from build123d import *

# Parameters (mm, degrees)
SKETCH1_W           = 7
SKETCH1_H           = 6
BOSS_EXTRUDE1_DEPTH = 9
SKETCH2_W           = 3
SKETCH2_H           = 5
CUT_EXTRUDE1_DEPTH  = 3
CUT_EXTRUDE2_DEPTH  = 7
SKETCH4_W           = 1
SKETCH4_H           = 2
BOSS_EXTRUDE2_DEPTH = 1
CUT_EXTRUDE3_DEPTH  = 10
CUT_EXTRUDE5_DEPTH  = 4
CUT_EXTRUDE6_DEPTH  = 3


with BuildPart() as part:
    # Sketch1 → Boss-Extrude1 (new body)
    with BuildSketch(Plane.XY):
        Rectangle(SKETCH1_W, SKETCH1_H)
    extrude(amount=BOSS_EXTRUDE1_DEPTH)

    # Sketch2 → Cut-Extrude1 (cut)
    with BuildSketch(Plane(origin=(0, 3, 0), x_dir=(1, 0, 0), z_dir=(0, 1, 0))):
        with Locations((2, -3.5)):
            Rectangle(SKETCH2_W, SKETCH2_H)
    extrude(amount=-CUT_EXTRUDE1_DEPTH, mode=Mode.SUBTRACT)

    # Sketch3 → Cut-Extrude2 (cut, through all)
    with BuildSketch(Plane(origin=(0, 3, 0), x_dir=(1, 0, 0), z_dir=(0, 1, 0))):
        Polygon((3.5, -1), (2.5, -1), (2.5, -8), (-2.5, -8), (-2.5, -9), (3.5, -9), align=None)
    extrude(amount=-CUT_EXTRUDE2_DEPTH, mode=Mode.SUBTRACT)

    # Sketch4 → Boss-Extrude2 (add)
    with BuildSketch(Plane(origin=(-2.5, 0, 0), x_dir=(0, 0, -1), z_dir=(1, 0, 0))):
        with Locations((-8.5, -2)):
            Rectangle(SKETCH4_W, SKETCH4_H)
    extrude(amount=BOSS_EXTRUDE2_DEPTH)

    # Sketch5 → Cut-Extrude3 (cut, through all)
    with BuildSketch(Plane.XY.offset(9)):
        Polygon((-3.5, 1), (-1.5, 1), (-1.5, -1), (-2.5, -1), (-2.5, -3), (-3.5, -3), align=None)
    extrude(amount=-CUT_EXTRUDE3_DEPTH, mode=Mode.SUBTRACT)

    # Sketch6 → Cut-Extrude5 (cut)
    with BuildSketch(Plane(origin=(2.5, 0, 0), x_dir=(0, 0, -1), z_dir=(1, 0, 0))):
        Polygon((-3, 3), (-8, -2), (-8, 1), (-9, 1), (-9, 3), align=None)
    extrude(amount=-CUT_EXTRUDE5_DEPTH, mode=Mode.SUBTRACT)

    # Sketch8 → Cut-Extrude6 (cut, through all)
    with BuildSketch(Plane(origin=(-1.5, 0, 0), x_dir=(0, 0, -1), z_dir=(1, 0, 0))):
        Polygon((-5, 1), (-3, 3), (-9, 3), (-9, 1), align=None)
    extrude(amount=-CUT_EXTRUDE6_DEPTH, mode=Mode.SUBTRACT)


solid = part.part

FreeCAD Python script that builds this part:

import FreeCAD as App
import Part
import Sketcher


def add_polygon(sketch, points):
    """Adds a closed chain of lines whose ends are joined by coincident constraints."""
    first, n = sketch.GeometryCount, len(points)
    for a, b in zip(points, points[1:] + points[:1]):
        sketch.addGeometry(Part.LineSegment(App.Vector(*a, 0), App.Vector(*b, 0)), False)
    for i in range(n):
        sketch.addConstraint(Sketcher.Constraint("Coincident", first + i, 2, first + (i + 1) % n, 1))

doc = App.newDocument("Part")
body = doc.addObject("PartDesign::Body", "Body")

sketch1 = doc.addObject("Sketcher::SketchObject", "Sketch")
body.addObject(sketch1)
sketch1.AttachmentSupport = (doc.XY_Plane, [""])
sketch1.MapMode = "FlatFace"
add_polygon(sketch1, [(-3.5, 3), (-3.5, -3), (3.5, -3), (3.5, 3)])
sketch1.addConstraint(Sketcher.Constraint("Vertical", 0))
sketch1.addConstraint(Sketcher.Constraint("Horizontal", 1))
sketch1.addConstraint(Sketcher.Constraint("Vertical", 2))
sketch1.addConstraint(Sketcher.Constraint("Horizontal", 3))
sketch1.addConstraint(Sketcher.Constraint("Symmetric", 0, 2, 2, 2, -1, 1))
sketch1.addConstraint(Sketcher.Constraint("DistanceX", 1, 1, 1, 2, 7.0))
sketch1.addConstraint(Sketcher.Constraint("DistanceY", 0, 2, 0, 1, 6.0))
pad1 = doc.addObject("PartDesign::Pad", "Pad")
body.addObject(pad1)
pad1.Profile = sketch1
pad1.Length = 9

sketch2 = doc.addObject("Sketcher::SketchObject", "Sketch001")
body.addObject(sketch2)
sketch2.AttachmentSupport = (doc.XZ_Plane, [""])
sketch2.MapMode = "FlatFace"
sketch2.AttachmentOffset = App.Placement(App.Vector(0, 0, -3), App.Rotation())
add_polygon(sketch2, [(0.5, 1), (0.5, 6), (3.5, 6), (3.5, 1)])
sketch2.addConstraint(Sketcher.Constraint("Vertical", 0))
sketch2.addConstraint(Sketcher.Constraint("Horizontal", 1))
sketch2.addConstraint(Sketcher.Constraint("Vertical", 2))
sketch2.addConstraint(Sketcher.Constraint("Horizontal", 3))
sketch2.addConstraint(Sketcher.Constraint("DistanceX", 1, 1, 1, 2, 3.0))
sketch2.addConstraint(Sketcher.Constraint("DistanceY", 0, 1, 0, 2, 5.0))
sketch2.addConstraint(Sketcher.Constraint("DistanceY", -1, 1, 0, 2, 6.0))
sketch2.addConstraint(Sketcher.Constraint("DistanceX", -1, 1, 0, 2, 0.5))
pocket1 = doc.addObject("PartDesign::Pocket", "Pocket")
body.addObject(pocket1)
pocket1.Profile = sketch2
pocket1.Length = 3
pocket1.Reversed = True

sketch3 = doc.addObject("Sketcher::SketchObject", "Sketch002")
body.addObject(sketch3)
sketch3.AttachmentSupport = (doc.XZ_Plane, [""])
sketch3.MapMode = "FlatFace"
sketch3.AttachmentOffset = App.Placement(App.Vector(0, 0, -3), App.Rotation())
add_polygon(sketch3, [(3.5, 1), (2.5, 1), (2.5, 8), (-2.5, 8), (-2.5, 9), (3.5, 9)])
sketch3.addConstraint(Sketcher.Constraint("Horizontal", 0))
sketch3.addConstraint(Sketcher.Constraint("Vertical", 1))
sketch3.addConstraint(Sketcher.Constraint("Horizontal", 2))
sketch3.addConstraint(Sketcher.Constraint("Vertical", 3))
sketch3.addConstraint(Sketcher.Constraint("Horizontal", 4))
sketch3.addConstraint(Sketcher.Constraint("Vertical", 5))
sketch3.addConstraint(Sketcher.Constraint("Equal", 0, 3))
sketch3.addConstraint(Sketcher.Constraint("DistanceX", 0, 2, 0, 1, 1.0))
sketch3.addConstraint(Sketcher.Constraint("DistanceX", 2, 2, 2, 1, 5.0))
sketch3.addConstraint(Sketcher.Constraint("DistanceY", 1, 1, 1, 2, 7.0))
sketch3.addConstraint(Sketcher.Constraint("DistanceY", -1, 1, 0, 2, 1.0))
sketch3.addConstraint(Sketcher.Constraint("DistanceX", -1, 1, 0, 2, 2.5))
pocket2 = doc.addObject("PartDesign::Pocket", "Pocket001")
body.addObject(pocket2)
pocket2.Profile = sketch3
pocket2.Type = "ThroughAll"
pocket2.Reversed = True

sketch4 = doc.addObject("Sketcher::SketchObject", "Sketch003")
body.addObject(sketch4)
sketch4.AttachmentSupport = (doc.YZ_Plane, [""])
sketch4.MapMode = "FlatFace"
sketch4.AttachmentOffset = App.Placement(App.Vector(0, 0, -2.5), App.Rotation())
add_polygon(sketch4, [(-1, 9), (-3, 9), (-3, 8), (-1, 8)])
sketch4.addConstraint(Sketcher.Constraint("Horizontal", 0))
sketch4.addConstraint(Sketcher.Constraint("Vertical", 1))
sketch4.addConstraint(Sketcher.Constraint("Horizontal", 2))
sketch4.addConstraint(Sketcher.Constraint("Vertical", 3))
sketch4.addConstraint(Sketcher.Constraint("DistanceX", 0, 2, 0, 1, 2.0))
sketch4.addConstraint(Sketcher.Constraint("DistanceY", 1, 2, 1, 1, 1.0))
sketch4.addConstraint(Sketcher.Constraint("DistanceX", 0, 2, -1, 1, 3.0))
sketch4.addConstraint(Sketcher.Constraint("DistanceY", -1, 1, 0, 2, 9.0))
pad2 = doc.addObject("PartDesign::Pad", "Pad001")
body.addObject(pad2)
pad2.Profile = sketch4
pad2.Length = 1

sketch5 = doc.addObject("Sketcher::SketchObject", "Sketch004")
body.addObject(sketch5)
sketch5.AttachmentSupport = (doc.XY_Plane, [""])
sketch5.MapMode = "FlatFace"
sketch5.AttachmentOffset = App.Placement(App.Vector(0, 0, 9), App.Rotation())
add_polygon(sketch5, [(-1.5, 1), (-3.5, 1), (-3.5, -3), (-2.5, -3), (-2.5, -1), (-1.5, -1)])
sketch5.addConstraint(Sketcher.Constraint("Horizontal", 0))
sketch5.addConstraint(Sketcher.Constraint("Vertical", 1))
sketch5.addConstraint(Sketcher.Constraint("Horizontal", 2))
sketch5.addConstraint(Sketcher.Constraint("Vertical", 3))
sketch5.addConstraint(Sketcher.Constraint("Horizontal", 4))
sketch5.addConstraint(Sketcher.Constraint("Vertical", 5))
sketch5.addConstraint(Sketcher.Constraint("Equal", 2, 4))
sketch5.addConstraint(Sketcher.Constraint("Equal", 0, 3))
sketch5.addConstraint(Sketcher.Constraint("Equal", 3, 5))
sketch5.addConstraint(Sketcher.Constraint("DistanceX", 0, 2, 0, 1, 2.0))
sketch5.addConstraint(Sketcher.Constraint("DistanceY", -1, 1, 0, 2, 1.0))
sketch5.addConstraint(Sketcher.Constraint("DistanceX", 0, 2, -1, 1, 3.5))
pocket3 = doc.addObject("PartDesign::Pocket", "Pocket002")
body.addObject(pocket3)
pocket3.Profile = sketch5
pocket3.Type = "ThroughAll"

sketch6 = doc.addObject("Sketcher::SketchObject", "Sketch005")
body.addObject(sketch6)
sketch6.AttachmentSupport = (doc.YZ_Plane, [""])
sketch6.MapMode = "FlatFace"
sketch6.AttachmentOffset = App.Placement(App.Vector(0, 0, 2.5), App.Rotation())
add_polygon(sketch6, [(-2, 8), (3, 3), (3, 9), (1, 9), (1, 8)])
sketch6.addConstraint(Sketcher.Constraint("Vertical", 1))
sketch6.addConstraint(Sketcher.Constraint("Horizontal", 2))
sketch6.addConstraint(Sketcher.Constraint("Vertical", 3))
sketch6.addConstraint(Sketcher.Constraint("Horizontal", 4))
sketch6.addConstraint(Sketcher.Constraint("DistanceX", 2, 2, 2, 1, 2.0))
sketch6.addConstraint(Sketcher.Constraint("DistanceX", 4, 2, 4, 1, 3.0))
sketch6.addConstraint(Sketcher.Constraint("DistanceY", 1, 1, 1, 2, 6.0))
sketch6.addConstraint(Sketcher.Constraint("DistanceY", 3, 2, 3, 1, 1.0))
sketch6.addConstraint(Sketcher.Constraint("DistanceX", -1, 1, 0, 2, 3.0))
sketch6.addConstraint(Sketcher.Constraint("DistanceY", -1, 1, 0, 2, 3.0))
pocket4 = doc.addObject("PartDesign::Pocket", "Pocket003")
body.addObject(pocket4)
pocket4.Profile = sketch6
pocket4.Length = 4

sketch7 = doc.addObject("Sketcher::SketchObject", "Sketch006")
body.addObject(sketch7)
sketch7.AttachmentSupport = (doc.YZ_Plane, [""])
sketch7.MapMode = "FlatFace"
sketch7.AttachmentOffset = App.Placement(App.Vector(0, 0, -1.5), App.Rotation())
add_polygon(sketch7, [(1, 5), (3, 3), (3, 9), (1, 9)])
sketch7.addConstraint(Sketcher.Constraint("Vertical", 1))
sketch7.addConstraint(Sketcher.Constraint("Horizontal", 2))
sketch7.addConstraint(Sketcher.Constraint("Vertical", 3))
sketch7.addConstraint(Sketcher.Constraint("DistanceX", 2, 2, 2, 1, 2.0))
sketch7.addConstraint(Sketcher.Constraint("DistanceY", 1, 1, 1, 2, 6.0))
sketch7.addConstraint(Sketcher.Constraint("DistanceY", 3, 2, 3, 1, 4.0))
sketch7.addConstraint(Sketcher.Constraint("DistanceX", -1, 1, 0, 2, 3.0))
sketch7.addConstraint(Sketcher.Constraint("DistanceY", -1, 1, 0, 2, 3.0))
pocket5 = doc.addObject("PartDesign::Pocket", "Pocket004")
body.addObject(pocket5)
pocket5.Profile = sketch7
pocket5.Type = "ThroughAll"

doc.recompute()
